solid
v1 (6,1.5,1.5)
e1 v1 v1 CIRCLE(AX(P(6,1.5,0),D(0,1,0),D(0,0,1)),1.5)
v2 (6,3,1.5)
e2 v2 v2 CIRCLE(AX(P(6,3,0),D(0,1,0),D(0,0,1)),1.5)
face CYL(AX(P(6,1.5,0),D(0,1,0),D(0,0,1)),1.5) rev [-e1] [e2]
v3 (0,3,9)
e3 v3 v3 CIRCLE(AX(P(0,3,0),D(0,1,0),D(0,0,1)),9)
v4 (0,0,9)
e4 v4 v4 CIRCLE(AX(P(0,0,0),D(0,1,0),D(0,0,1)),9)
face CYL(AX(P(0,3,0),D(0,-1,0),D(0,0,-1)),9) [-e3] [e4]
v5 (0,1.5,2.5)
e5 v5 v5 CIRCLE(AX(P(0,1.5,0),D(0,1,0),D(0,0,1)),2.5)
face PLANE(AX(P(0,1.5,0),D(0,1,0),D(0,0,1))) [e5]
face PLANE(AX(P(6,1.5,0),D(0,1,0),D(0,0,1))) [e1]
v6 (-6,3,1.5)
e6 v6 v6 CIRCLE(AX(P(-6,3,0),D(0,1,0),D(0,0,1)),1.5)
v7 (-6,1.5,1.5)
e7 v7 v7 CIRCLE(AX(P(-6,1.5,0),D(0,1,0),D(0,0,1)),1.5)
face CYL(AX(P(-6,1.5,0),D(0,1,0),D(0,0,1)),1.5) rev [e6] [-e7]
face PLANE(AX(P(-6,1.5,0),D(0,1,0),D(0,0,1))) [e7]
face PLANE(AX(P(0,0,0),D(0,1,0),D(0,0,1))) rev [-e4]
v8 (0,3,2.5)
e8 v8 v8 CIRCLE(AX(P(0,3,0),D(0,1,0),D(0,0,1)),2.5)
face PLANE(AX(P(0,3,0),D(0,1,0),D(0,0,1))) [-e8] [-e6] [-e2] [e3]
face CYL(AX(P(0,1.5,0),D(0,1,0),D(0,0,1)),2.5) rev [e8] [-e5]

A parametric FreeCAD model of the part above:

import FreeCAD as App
import Part
import Sketcher
from FreeCAD import Vector

doc = App.newDocument("Part")
body = doc.addObject("PartDesign::Body", "Body")

sketch1 = body.newObject("Sketcher::SketchObject", "Sketch")
sketch1.AttachmentSupport = (doc.getObject("XZ_Plane"), [""])
sketch1.MapMode = "FlatFace"
sketch1.addGeometry(Part.Circle(Vector(0, 0, 0), Vector(0, 0, 1), 9), False)
sketch1.addConstraint([
    Sketcher.Constraint("Coincident", 0, 3, -1, 1),
    Sketcher.Constraint("Diameter", 0, 18.0),
])
pad1 = body.newObject("PartDesign::Pad", "Pad")
pad1.Profile = sketch1
pad1.Length = 3
pad1.Reversed = True

sketch2 = body.newObject("Sketcher::SketchObject", "Sketch001")
sketch2.AttachmentSupport = (doc.getObject("XZ_Plane"), [""])
sketch2.MapMode = "FlatFace"
sketch2.AttachmentOffset = App.Placement(Vector(0, 0, -3), App.Rotation())
sketch2.addGeometry([
    Part.Circle(Vector(0, 0, 0), Vector(0, 0, 1), 2.5),
    Part.Circle(Vector(-6, 0, 0), Vector(0, 0, 1), 1.5),
    Part.Circle(Vector(6, 0, 0), Vector(0, 0, 1), 1.5),
], False)
sketch2.addConstraint([
    Sketcher.Constraint("Coincident", 0, 3, -1, 1),
    Sketcher.Constraint("Equal", 1, 2),
    Sketcher.Constraint("Symmetric", 1, 3, 2, 3, -1, 1),
    Sketcher.Constraint("PointOnObject", 1, 3, -1),
    Sketcher.Constraint("Diameter", 0, 5.0),
    Sketcher.Constraint("Diameter", 1, 3.0),
    Sketcher.Constraint("DistanceX", 1, 3, -1, 1, 6.0),
])
pocket1 = body.newObject("PartDesign::Pocket", "Pocket")
pocket1.Profile = sketch2
pocket1.Length = 1.5
pocket1.Reversed = True

doc.recompute()
